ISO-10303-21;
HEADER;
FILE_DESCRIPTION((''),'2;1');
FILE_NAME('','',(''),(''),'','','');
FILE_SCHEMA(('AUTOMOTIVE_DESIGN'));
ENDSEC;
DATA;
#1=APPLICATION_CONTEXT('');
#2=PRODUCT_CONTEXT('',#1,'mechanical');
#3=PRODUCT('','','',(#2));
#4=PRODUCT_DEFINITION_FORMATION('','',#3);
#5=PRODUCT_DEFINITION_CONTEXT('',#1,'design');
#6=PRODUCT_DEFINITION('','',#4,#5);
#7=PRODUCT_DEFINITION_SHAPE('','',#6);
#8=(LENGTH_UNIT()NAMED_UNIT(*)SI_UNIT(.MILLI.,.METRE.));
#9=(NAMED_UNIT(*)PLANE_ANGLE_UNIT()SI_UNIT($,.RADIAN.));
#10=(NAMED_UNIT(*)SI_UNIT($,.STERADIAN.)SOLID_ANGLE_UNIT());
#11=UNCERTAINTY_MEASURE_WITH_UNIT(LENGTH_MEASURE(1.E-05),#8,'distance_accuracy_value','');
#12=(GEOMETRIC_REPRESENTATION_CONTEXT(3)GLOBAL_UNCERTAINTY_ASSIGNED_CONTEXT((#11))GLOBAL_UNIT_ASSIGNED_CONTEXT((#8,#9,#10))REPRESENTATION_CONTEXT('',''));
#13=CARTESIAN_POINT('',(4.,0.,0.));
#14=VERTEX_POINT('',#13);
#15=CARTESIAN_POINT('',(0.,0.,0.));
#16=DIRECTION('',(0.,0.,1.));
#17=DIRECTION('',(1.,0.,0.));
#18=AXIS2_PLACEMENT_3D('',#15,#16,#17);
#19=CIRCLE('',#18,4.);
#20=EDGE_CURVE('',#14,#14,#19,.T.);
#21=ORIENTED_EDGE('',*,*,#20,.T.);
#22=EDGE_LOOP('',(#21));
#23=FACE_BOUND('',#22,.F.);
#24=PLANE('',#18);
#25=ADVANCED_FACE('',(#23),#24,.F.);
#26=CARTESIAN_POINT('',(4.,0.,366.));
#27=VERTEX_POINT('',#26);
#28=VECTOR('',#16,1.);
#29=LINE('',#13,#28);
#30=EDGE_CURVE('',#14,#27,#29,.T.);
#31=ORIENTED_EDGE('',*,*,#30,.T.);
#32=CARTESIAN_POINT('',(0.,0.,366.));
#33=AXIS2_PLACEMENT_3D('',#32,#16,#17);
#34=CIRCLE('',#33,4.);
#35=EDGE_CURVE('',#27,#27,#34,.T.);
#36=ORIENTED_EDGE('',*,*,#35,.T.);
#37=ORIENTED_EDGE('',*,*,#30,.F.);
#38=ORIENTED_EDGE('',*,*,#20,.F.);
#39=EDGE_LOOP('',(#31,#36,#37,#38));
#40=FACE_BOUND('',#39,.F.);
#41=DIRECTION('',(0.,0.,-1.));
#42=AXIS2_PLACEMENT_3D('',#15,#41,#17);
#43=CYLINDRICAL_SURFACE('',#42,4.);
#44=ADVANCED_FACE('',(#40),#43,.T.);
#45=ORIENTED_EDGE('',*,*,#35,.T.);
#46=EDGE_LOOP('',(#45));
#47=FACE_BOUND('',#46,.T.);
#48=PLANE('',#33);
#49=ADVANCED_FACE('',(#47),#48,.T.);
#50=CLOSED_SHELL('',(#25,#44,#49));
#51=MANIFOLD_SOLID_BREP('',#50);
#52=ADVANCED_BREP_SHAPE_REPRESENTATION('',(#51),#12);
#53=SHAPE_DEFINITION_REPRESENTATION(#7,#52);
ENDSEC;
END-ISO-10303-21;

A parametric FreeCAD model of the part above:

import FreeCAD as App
import Part
import Sketcher

doc = App.newDocument("Part")
body = doc.addObject("PartDesign::Body", "Body")

sketch1 = body.newObject("Sketcher::SketchObject", "Sketch")
sketch1.AttachmentSupport = (doc.getObject("XY_Plane"), [""])
sketch1.MapMode = "FlatFace"
sketch1.addGeometry(Part.Circle(App.Vector(0, 0, 0), App.Vector(0, 0, 1), 4), False)
sketch1.addConstraint(Sketcher.Constraint("Coincident", 0, 3, -1, 1))
sketch1.addConstraint(Sketcher.Constraint("Diameter", 0, 8.0))
pad1 = body.newObject("PartDesign::Pad", "Pad")
pad1.Profile = sketch1
pad1.Length = 366

doc.recompute()
